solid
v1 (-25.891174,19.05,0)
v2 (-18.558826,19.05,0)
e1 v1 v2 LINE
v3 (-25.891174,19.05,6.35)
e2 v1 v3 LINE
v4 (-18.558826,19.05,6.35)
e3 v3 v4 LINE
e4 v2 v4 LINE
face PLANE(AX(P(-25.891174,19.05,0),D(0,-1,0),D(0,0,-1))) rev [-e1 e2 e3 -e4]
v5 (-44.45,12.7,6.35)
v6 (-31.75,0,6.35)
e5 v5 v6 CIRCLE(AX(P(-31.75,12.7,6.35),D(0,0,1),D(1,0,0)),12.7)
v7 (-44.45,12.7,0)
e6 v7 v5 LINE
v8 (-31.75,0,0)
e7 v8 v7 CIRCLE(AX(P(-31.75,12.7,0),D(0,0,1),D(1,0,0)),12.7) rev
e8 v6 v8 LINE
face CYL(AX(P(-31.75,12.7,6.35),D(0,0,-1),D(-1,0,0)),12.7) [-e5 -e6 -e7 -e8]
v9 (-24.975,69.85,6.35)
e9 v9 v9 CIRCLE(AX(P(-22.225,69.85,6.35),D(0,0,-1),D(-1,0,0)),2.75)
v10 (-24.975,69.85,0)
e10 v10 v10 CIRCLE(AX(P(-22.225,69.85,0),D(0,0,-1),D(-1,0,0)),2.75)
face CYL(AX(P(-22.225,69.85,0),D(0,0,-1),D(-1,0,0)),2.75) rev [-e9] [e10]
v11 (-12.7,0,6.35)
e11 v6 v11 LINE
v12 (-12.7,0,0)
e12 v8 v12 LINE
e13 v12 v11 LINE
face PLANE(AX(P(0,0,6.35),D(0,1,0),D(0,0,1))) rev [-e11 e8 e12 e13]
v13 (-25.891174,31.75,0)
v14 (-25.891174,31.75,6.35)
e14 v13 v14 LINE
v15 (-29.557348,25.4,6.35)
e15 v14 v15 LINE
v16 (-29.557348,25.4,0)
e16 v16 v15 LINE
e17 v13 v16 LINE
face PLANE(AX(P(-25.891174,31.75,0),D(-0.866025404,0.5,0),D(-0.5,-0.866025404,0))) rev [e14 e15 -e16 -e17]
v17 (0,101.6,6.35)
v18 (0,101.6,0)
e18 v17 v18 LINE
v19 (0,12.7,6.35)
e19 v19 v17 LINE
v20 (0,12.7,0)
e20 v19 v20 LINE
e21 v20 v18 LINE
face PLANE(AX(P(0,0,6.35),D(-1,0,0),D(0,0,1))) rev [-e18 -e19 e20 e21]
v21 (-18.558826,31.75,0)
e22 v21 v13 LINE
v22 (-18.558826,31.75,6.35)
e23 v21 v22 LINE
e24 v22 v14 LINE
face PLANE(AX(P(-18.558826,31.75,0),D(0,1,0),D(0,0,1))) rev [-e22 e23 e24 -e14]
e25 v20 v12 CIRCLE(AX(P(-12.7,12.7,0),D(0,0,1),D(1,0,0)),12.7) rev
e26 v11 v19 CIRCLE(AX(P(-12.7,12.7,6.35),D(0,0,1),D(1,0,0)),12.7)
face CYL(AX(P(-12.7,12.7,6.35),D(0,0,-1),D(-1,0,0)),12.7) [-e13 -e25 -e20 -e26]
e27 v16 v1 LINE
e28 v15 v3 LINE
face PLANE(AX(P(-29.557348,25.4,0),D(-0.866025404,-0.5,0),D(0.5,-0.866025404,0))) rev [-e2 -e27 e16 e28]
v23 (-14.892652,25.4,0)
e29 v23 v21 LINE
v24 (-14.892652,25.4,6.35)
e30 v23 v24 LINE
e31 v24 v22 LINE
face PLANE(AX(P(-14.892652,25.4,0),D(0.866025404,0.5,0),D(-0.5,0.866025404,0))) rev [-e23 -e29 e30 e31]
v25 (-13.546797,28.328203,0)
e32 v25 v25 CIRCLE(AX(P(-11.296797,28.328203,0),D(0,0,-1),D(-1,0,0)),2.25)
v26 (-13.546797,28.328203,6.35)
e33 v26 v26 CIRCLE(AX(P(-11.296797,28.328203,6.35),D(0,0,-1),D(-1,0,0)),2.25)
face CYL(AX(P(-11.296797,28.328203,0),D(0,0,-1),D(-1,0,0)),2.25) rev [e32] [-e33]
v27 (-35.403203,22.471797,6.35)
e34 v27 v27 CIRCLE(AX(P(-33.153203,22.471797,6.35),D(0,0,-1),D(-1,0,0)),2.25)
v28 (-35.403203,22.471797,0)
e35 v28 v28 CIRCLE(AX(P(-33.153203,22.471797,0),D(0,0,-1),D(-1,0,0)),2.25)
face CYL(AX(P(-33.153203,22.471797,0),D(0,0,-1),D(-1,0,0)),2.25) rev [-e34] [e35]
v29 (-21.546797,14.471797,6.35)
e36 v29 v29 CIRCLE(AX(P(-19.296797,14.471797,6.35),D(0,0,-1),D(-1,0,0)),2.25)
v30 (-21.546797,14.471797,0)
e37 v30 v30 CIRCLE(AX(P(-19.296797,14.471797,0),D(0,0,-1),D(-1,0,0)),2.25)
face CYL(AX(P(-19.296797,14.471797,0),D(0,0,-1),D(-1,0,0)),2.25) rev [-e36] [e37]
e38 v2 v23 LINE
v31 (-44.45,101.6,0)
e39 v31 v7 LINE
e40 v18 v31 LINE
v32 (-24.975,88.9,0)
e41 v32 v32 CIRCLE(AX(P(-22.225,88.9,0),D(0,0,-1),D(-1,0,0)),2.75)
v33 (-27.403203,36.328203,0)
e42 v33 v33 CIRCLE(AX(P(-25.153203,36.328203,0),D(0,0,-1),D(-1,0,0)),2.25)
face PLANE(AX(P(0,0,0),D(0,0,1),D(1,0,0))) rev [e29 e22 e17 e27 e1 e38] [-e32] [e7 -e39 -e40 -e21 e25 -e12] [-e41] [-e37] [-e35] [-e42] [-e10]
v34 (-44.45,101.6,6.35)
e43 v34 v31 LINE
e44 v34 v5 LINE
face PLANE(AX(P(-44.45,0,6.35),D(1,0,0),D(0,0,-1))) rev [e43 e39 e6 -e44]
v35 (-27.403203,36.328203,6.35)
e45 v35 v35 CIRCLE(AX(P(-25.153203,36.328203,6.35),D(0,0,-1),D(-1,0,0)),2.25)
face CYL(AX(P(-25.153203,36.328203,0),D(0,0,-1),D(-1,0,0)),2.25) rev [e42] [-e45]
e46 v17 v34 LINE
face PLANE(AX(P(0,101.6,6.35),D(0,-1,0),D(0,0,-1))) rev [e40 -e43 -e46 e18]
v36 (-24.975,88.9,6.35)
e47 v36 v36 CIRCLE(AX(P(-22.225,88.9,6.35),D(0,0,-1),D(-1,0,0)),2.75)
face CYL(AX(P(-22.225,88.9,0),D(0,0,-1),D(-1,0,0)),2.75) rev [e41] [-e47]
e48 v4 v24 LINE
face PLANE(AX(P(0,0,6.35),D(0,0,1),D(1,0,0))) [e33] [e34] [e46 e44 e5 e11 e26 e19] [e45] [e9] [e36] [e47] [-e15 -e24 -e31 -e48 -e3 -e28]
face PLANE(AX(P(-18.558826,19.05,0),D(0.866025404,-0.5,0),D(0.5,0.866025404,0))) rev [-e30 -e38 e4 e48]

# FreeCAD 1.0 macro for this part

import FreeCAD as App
import Part
import Sketcher

V = App.Vector
Q = App.Units.Quantity


def edges_at(feature, points):
    """Names of the edges that pass closest to the given points."""
    edges = feature.Shape.Edges
    near = lambda p: min(range(len(edges)), key=lambda i: edges[i].distToShape(Part.Vertex(*p))[0])
    return sorted({f"Edge{near(p) + 1}" for p in points})

doc = App.newDocument("Part")
body = doc.addObject("PartDesign::Body", "Body")

# Sketch on XY plane
sketch1 = body.newObject("Sketcher::SketchObject", "Sketch")
sketch1.AttachmentSupport = (doc.getObject("XY_Plane"), [""])
sketch1.MapMode = "FlatFace"
sketch1.addGeometry([
    Part.LineSegment(V(-44, 102, 0), V(-44, 0, 0)),
    Part.LineSegment(V(-44, 0, 0), V(0, 0, 0)),
    Part.LineSegment(V(0, 0, 0), V(0, 102, 0)),
    Part.LineSegment(V(0, 102, 0), V(-44, 102, 0)),
], False)
sketch1.addConstraint([
    Sketcher.Constraint("Coincident", 0, 2, 1, 1),
    Sketcher.Constraint("Coincident", 1, 2, 2, 1),
    Sketcher.Constraint("Coincident", 2, 2, 3, 1),
    Sketcher.Constraint("Coincident", 3, 2, 0, 1),
    Sketcher.Constraint("Vertical", 0),
    Sketcher.Constraint("Horizontal", 1),
    Sketcher.Constraint("Vertical", 2),
    Sketcher.Constraint("Horizontal", 3),
    Sketcher.Constraint("Coincident", 1, 2, -1, 1),
    Sketcher.Constraint("DistanceY", 0, 2, 0, 1, Q("4 in")),
    Sketcher.Constraint("DistanceX", 1, 1, 1, 2, Q("1.75 in")),
])
pad1 = body.newObject("PartDesign::Pad", "Pad")
pad1.Profile = sketch1
pad1.Length = Q("0.25 in")
doc.recompute()

fillet = body.newObject("PartDesign::Fillet", "Fillet")
fillet.Base = (pad1, edges_at(pad1, [(0, 0, 3.175), (-44.45, 0, 3.175)]))
fillet.Radius = Q("0.5 in")

# Sketch on XY plane
sketch2 = body.newObject("Sketcher::SketchObject", "Sketch001")
sketch2.AttachmentSupport = (doc.getObject("XY_Plane"), [""])
sketch2.MapMode = "FlatFace"
sketch2.addGeometry([
    Part.Circle(V(-22.2, 88.9, 0), V(0, 0, 1), 2.8),
    Part.Circle(V(-22.2, 69.8, 0), V(0, 0, 1), 2.8),
], False)
sketch2.addConstraint([
    Sketcher.Constraint("Equal", 0, 1),
    Sketcher.Constraint("Vertical", 0, 3, 1, 3),
    Sketcher.Constraint("DistanceY", -1, 1, 0, 3, Q("3.5 in")),
    Sketcher.Constraint("Diameter", 0, 5.5),
    Sketcher.Constraint("DistanceY", -1, 1, 1, 3, Q("2.75 in")),
    Sketcher.Constraint("DistanceX", 0, 3, -1, 1, Q("0.875 in")),
])
doc.recompute()
hole = body.newObject("PartDesign::Hole", "Hole")
hole.Profile = sketch2
hole.ThreadType = "None"
hole.Diameter = 5.5
hole.DepthType = "ThroughAll"
hole.Reversed = True

# Sketch on XY plane
sketch3 = body.newObject("Sketcher::SketchObject", "Sketch002")
sketch3.AttachmentSupport = (doc.getObject("XY_Plane"), [""])
sketch3.MapMode = "FlatFace"
sketch3.AttachmentOffset = App.Placement(V(0, 0, 0.25 * 25.4), App.Rotation())
sketch3.addGeometry([
    Part.LineSegment(V(-15, 25, 0), V(-19, 32, 0)),  # 0
    Part.LineSegment(V(-19, 32, 0), V(-26, 32, 0)),  # 1
    Part.LineSegment(V(-26, 32, 0), V(-30, 25, 0)),  # 2
    Part.LineSegment(V(-30, 25, 0), V(-26, 19, 0)),  # 3
    Part.LineSegment(V(-26, 19, 0), V(-19, 19, 0)),  # 4
    Part.LineSegment(V(-19, 19, 0), V(-15, 25, 0)),  # 5
], False)
sketch3.addConstraint([
    Sketcher.Constraint("Coincident", 0, 2, 1, 1),
    Sketcher.Constraint("Coincident", 1, 2, 2, 1),
    Sketcher.Constraint("Coincident", 2, 2, 3, 1),
    Sketcher.Constraint("Coincident", 3, 2, 4, 1),
    Sketcher.Constraint("Coincident", 4, 2, 5, 1),
    Sketcher.Constraint("Coincident", 5, 2, 0, 1),
    Sketcher.Constraint("Horizontal", 1),
    Sketcher.Constraint("Horizontal", 4),
    Sketcher.Constraint("Parallel", 0, 3),
    Sketcher.Constraint("Parallel", 2, 5),
    Sketcher.Constraint("Horizontal", 2, 2, 5, 2),
    Sketcher.Constraint("Vertical", 1, 2, 3, 2),
    Sketcher.Constraint("Vertical", 0, 2, 4, 2),
    Sketcher.Constraint("DistanceY", -1, 1, 2, 2, Q("1 in")),
    Sketcher.Constraint("Angle", 0, Q("120 deg")),
    Sketcher.Constraint("DistanceY", 3, 2, 1, 2, Q("0.5 in")),
    Sketcher.Constraint("DistanceX", 1, 2, 1, 1, 7.332348),
    Sketcher.Constraint("DistanceX", 2, 2, -1, 1, 29.557348),
])
pocket1 = body.newObject("PartDesign::Pocket", "Pocket")
pocket1.Profile = sketch3
pocket1.Type = "ThroughAll"

# Sketch on XY plane
sketch4 = body.newObject("Sketcher::SketchObject", "Sketch003")
sketch4.AttachmentSupport = (doc.getObject("XY_Plane"), [""])
sketch4.MapMode = "FlatFace"
sketch4.addGeometry([
    Part.Circle(V(-11.3, 28.3, 0), V(0, 0, 1), 2.2),
    Part.Circle(V(-25.2, 36.3, 0), V(0, 0, 1), 2.2),
    Part.Circle(V(-33.2, 22.5, 0), V(0, 0, 1), 2.2),
    Part.Circle(V(-19.3, 14.5, 0), V(0, 0, 1), 2.2),
], False)
sketch4.addConstraint([
    Sketcher.Constraint("Equal", 0, 1),
    Sketcher.Constraint("Equal", 1, 2),
    Sketcher.Constraint("Equal", 2, 3),
    Sketcher.Constraint("Diameter", 0, 4.5),
    Sketcher.Constraint("DistanceY", 0, 3, 1, 3, 8.0),
    Sketcher.Constraint("DistanceX", 2, 3, 1, 3, 8.0),
    Sketcher.Constraint("DistanceX", 3, 3, 0, 3, 8.0),
    Sketcher.Constraint("DistanceY", 3, 3, 2, 3, 8.0),
    Sketcher.Constraint("DistanceX", 0, 3, -1, 1, 11.296797),
    Sketcher.Constraint("DistanceY", -1, 1, 0, 3, 28.328203),
    Sketcher.Constraint("DistanceX", 1, 3, -1, 1, 25.153203),
    Sketcher.Constraint("DistanceY", -1, 1, 2, 3, 22.471797),
])
doc.recompute()
hole2 = body.newObject("PartDesign::Hole", "Hole001")
hole2.Profile = sketch4
hole2.ThreadType = "None"
hole2.Diameter = 4.5
hole2.DepthType = "ThroughAll"
hole2.Reversed = True

doc.recompute()
